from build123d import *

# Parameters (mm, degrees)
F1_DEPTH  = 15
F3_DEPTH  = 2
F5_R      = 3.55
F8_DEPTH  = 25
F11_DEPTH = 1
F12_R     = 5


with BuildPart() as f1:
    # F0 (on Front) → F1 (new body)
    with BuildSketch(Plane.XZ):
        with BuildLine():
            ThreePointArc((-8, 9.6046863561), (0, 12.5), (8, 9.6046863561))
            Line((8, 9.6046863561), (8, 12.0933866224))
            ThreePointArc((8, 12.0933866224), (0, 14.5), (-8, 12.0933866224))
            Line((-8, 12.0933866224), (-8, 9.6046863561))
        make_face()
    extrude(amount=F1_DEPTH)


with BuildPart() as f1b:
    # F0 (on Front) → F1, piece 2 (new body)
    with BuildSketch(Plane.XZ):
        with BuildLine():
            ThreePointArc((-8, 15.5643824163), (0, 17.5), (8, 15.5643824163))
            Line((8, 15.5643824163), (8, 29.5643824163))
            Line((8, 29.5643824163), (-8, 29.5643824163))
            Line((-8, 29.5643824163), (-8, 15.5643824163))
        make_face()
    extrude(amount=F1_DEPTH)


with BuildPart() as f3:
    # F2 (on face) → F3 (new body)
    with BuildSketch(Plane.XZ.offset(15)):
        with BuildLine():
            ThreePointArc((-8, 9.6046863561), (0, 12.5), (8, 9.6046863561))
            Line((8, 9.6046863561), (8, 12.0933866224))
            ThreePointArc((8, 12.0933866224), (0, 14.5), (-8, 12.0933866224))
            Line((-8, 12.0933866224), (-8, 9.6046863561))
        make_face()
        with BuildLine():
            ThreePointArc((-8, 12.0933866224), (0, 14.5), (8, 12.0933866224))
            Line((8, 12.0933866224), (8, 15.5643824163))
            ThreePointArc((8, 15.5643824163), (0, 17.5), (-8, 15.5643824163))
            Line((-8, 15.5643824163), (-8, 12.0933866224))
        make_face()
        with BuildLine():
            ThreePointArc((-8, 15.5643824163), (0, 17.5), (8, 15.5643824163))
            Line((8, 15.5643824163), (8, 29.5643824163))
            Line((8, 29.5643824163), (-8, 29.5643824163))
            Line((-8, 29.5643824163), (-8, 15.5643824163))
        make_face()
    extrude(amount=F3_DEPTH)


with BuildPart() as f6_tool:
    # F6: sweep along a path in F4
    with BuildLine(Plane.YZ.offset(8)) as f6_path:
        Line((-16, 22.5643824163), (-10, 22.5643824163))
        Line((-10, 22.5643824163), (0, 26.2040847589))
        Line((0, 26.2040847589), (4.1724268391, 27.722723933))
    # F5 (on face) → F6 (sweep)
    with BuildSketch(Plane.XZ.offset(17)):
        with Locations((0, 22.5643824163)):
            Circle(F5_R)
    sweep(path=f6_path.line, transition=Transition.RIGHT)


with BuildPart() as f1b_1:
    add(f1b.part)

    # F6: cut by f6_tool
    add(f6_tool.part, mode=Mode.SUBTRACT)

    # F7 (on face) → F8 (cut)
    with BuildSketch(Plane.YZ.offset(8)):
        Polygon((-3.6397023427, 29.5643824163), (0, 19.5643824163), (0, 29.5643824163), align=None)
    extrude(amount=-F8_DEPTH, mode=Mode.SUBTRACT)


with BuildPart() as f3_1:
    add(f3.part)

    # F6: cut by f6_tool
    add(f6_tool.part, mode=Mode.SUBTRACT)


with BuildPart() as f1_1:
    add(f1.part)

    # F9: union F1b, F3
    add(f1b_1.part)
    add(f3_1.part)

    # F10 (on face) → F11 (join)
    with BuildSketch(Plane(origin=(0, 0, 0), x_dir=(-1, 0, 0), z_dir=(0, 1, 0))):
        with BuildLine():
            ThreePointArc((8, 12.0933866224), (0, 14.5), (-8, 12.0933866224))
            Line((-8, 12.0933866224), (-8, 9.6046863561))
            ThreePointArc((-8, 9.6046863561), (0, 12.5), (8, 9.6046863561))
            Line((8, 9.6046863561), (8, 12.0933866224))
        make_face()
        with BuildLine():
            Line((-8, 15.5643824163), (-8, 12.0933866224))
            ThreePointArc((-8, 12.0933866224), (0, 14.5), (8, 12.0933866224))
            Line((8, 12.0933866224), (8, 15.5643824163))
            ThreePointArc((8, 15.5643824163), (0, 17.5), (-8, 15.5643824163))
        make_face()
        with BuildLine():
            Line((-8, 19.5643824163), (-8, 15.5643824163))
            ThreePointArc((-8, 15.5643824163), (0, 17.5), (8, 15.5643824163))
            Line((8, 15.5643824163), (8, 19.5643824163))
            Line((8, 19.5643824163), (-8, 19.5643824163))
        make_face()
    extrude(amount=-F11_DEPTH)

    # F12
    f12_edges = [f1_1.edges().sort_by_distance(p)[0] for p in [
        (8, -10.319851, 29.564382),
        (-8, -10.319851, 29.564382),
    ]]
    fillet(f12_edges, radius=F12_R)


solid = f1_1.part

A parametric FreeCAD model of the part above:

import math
import FreeCAD as App
import Part
import Sketcher
from FreeCAD import Vector
Q = App.Units.Quantity


def edges_at(feature, points):
    """Names of the edges that pass closest to the given points."""
    edges = feature.Shape.Edges
    near = lambda p: min(range(len(edges)), key=lambda i: edges[i].distToShape(Part.Vertex(*p))[0])
    return sorted({f"Edge{near(p) + 1}" for p in points})


def add_polygon(sketch, points):
    """Adds a closed chain of lines whose ends are joined by coincident constraints."""
    first, n = sketch.GeometryCount, len(points)
    for a, b in zip(points, points[1:] + points[:1]):
        sketch.addGeometry(Part.LineSegment(App.Vector(*a, 0), App.Vector(*b, 0)), False)
    for i in range(n):
        sketch.addConstraint(Sketcher.Constraint("Coincident", first + i, 2, first + (i + 1) % n, 1))

doc = App.newDocument("Part")
params = doc.addObject("Spreadsheet::Sheet", "Params")
for row, (alias, value) in enumerate([
    ("sketch1_radius", "12.5 mm"),
    ("sketch1_radius2", "14.5 mm"),
    ("pad1_length", "15 mm"),
    ("sketch2_radius", "17.5 mm"),
    ("sketch2_width", "16 mm"),
    ("sketch2_height", "14 mm"),
    ("pad2_length", "15 mm"),
    ("sketch3_radius", "12.5 mm"),
    ("sketch3_width", "16 mm"),
    ("pad3_length", "2 mm"),
    ("sketch4_diameter", "7.1 mm"),
    ("sketch5_width", "6 mm"),
    ("sketch6_height", "10 mm"),
    ("pocket1_length", "25 mm"),
    ("sketch7_radius", "12.5 mm"),
    ("sketch7_width", "16 mm"),
    ("pad4_length", "1 mm"),
    ("fillet_radius", "5 mm"),
], start=1):
    params.set(f"A{row}", alias)
    params.set(f"B{row}", "=" + value)
    params.setAlias(f"B{row}", alias)

body = doc.addObject("PartDesign::Body", "Body")

sketch1 = doc.addObject("Sketcher::SketchObject", "Sketch")
body.addObject(sketch1)
sketch1.AttachmentSupport = (doc.XZ_Plane, [""])
sketch1.MapMode = "FlatFace"
sketch1.addGeometry(Part.ArcOfCircle(Part.Circle(Vector(0, 0, 0), Vector(0, 0, 1), 12.5), math.radians(50), math.radians(130)), False)
sketch1.addGeometry(Part.LineSegment(Vector(8, 9.6, 0), Vector(8, 12.1, 0)), False)
sketch1.addGeometry(Part.ArcOfCircle(Part.Circle(Vector(0, 0, 0), Vector(0, 0, 1), 14.5), math.radians(57), math.radians(123)), False)
sketch1.addGeometry(Part.LineSegment(Vector(-8, 12.1, 0), Vector(-8, 9.6, 0)), False)
sketch1.addConstraint(Sketcher.Constraint("Coincident", 0, 1, 1, 1))
sketch1.addConstraint(Sketcher.Constraint("Coincident", 1, 2, 2, 1))
sketch1.addConstraint(Sketcher.Constraint("Coincident", 2, 2, 3, 1))
sketch1.addConstraint(Sketcher.Constraint("Coincident", 3, 2, 0, 2))
sketch1.addConstraint(Sketcher.Constraint("Vertical", 1))
sketch1.addConstraint(Sketcher.Constraint("Vertical", 3))
sketch1.addConstraint(Sketcher.Constraint("Coincident", 0, 3, -1, 1))
sketch1.addConstraint(Sketcher.Constraint("Coincident", 2, 3, -1, 1))
sketch1.addConstraint(Sketcher.Constraint("Horizontal", 1, 2, 2, 2))
sketch1.addConstraint(Sketcher.Constraint("Radius", 0, Q("12.5 mm")))
sketch1.addConstraint(Sketcher.Constraint("Radius", 2, Q("14.5 mm")))
sketch1.addConstraint(Sketcher.Constraint("DistanceX", -1, 1, 0, 1, Q("8 mm")))
sketch1.setExpression("Constraints[9]", "Params.sketch1_radius")
sketch1.setExpression("Constraints[10]", "Params.sketch1_radius2")
pad1 = doc.addObject("PartDesign::Pad", "Pad")
body.addObject(pad1)
pad1.Profile = sketch1
pad1.setExpression("Length", "Params.pad1_length")
body2 = doc.addObject("PartDesign::Body", "Body001")

sketch2 = doc.addObject("Sketcher::SketchObject", "Sketch001")
body2.addObject(sketch2)
sketch2.AttachmentSupport = (doc.getObject("XZ_Plane001"), [""])
sketch2.MapMode = "FlatFace"
sketch2.addGeometry(Part.ArcOfCircle(Part.Circle(Vector(0, 0, 0), Vector(0, 0, 1), 18), math.radians(63), math.radians(117)), False)
sketch2.addGeometry(Part.LineSegment(Vector(8, 16, 0), Vector(8, 30, 0)), False)
sketch2.addGeometry(Part.LineSegment(Vector(8, 30, 0), Vector(-8, 30, 0)), False)
sketch2.addGeometry(Part.LineSegment(Vector(-8, 30, 0), Vector(-8, 16, 0)), False)
sketch2.addConstraint(Sketcher.Constraint("Coincident", 0, 1, 1, 1))
sketch2.addConstraint(Sketcher.Constraint("Coincident", 1, 2, 2, 1))
sketch2.addConstraint(Sketcher.Constraint("Coincident", 2, 2, 3, 1))
sketch2.addConstraint(Sketcher.Constraint("Coincident", 3, 2, 0, 2))
sketch2.addConstraint(Sketcher.Constraint("Vertical", 1))
sketch2.addConstraint(Sketcher.Constraint("Horizontal", 2))
sketch2.addConstraint(Sketcher.Constraint("Vertical", 3))
sketch2.addConstraint(Sketcher.Constraint("Coincident", 0, 3, -1, 1))
sketch2.addConstraint(Sketcher.Constraint("Horizontal", 0, 1, 3, 2))
sketch2.addConstraint(Sketcher.Constraint("Radius", 0, Q("17.5 mm")))
sketch2.addConstraint(Sketcher.Constraint("DistanceX", 2, 2, 2, 1, Q("16 mm")))
sketch2.addConstraint(Sketcher.Constraint("DistanceY", 1, 1, 1, 2, Q("14 mm")))
sketch2.setExpression("Constraints[9]", "Params.sketch2_radius")
sketch2.setExpression("Constraints[10]", "Params.sketch2_width")
sketch2.setExpression("Constraints[11]", "Params.sketch2_height")
pad2 = doc.addObject("PartDesign::Pad", "Pad001")
body2.addObject(pad2)
pad2.Profile = sketch2
pad2.setExpression("Length", "Params.pad2_length")
body3 = doc.addObject("PartDesign::Body", "Body002")

sketch3 = doc.addObject("Sketcher::SketchObject", "Sketch002")
body3.addObject(sketch3)
sketch3.AttachmentSupport = (doc.getObject("XZ_Plane002"), [""])
sketch3.MapMode = "FlatFace"
sketch3.AttachmentOffset = App.Placement(Vector(0, 0, 15), App.Rotation())
sketch3.addGeometry(Part.ArcOfCircle(Part.Circle(Vector(0, 0, 0), Vector(0, 0, 1), 12), math.radians(50), math.radians(130)), False)
sketch3.addGeometry(Part.LineSegment(Vector(8, 10, 0), Vector(8, 30, 0)), False)
sketch3.addGeometry(Part.LineSegment(Vector(8, 30, 0), Vector(-8, 30, 0)), False)
sketch3.addGeometry(Part.LineSegment(Vector(-8, 30, 0), Vector(-8, 10, 0)), False)
sketch3.addConstraint(Sketcher.Constraint("Coincident", 0, 1, 1, 1))
sketch3.addConstraint(Sketcher.Constraint("Coincident", 1, 2, 2, 1))
sketch3.addConstraint(Sketcher.Constraint("Coincident", 2, 2, 3, 1))
sketch3.addConstraint(Sketcher.Constraint("Coincident", 3, 2, 0, 2))
sketch3.addConstraint(Sketcher.Constraint("Vertical", 1))
sketch3.addConstraint(Sketcher.Constraint("Horizontal", 2))
sketch3.addConstraint(Sketcher.Constraint("Vertical", 3))
sketch3.addConstraint(Sketcher.Constraint("Coincident", 0, 3, -1, 1))
sketch3.addConstraint(Sketcher.Constraint("Horizontal", 0, 1, 3, 2))
sketch3.addConstraint(Sketcher.Constraint("Radius", 0, Q("12.5 mm")))
sketch3.addConstraint(Sketcher.Constraint("DistanceX", 2, 2, 2, 1, Q("16 mm")))
sketch3.addConstraint(Sketcher.Constraint("DistanceY", 1, 1, 1, 2, Q("19.959696 mm")))
sketch3.setExpression("Constraints[9]", "Params.sketch3_radius")
sketch3.setExpression("Constraints[10]", "Params.sketch3_width")
pad3 = doc.addObject("PartDesign::Pad", "Pad002")
body3.addObject(pad3)
pad3.Profile = sketch3
pad3.setExpression("Length", "Params.pad3_length")
body4 = doc.addObject("PartDesign::Body", "Body003")

sketch4 = doc.addObject("Sketcher::SketchObject", "Sketch003")
body4.addObject(sketch4)
sketch4.AttachmentSupport = (doc.getObject("XZ_Plane003"), [""])
sketch4.MapMode = "FlatFace"
sketch4.AttachmentOffset = App.Placement(Vector(0, 0, 17), App.Rotation())
sketch4.addGeometry(Part.Circle(Vector(0, 22.6, 0), Vector(0, 0, 1), 3.5), False)
sketch4.addConstraint(Sketcher.Constraint("PointOnObject", 0, 3, -2))
sketch4.addConstraint(Sketcher.Constraint("Diameter", 0, Q("7.1 mm")))
sketch4.addConstraint(Sketcher.Constraint("DistanceY", -1, 1, 0, 3, Q("22.564382 mm")))
sketch4.setExpression("Constraints[1]", "Params.sketch4_diameter")

sketch5 = doc.addObject("Sketcher::SketchObject", "Sketch004")
body4.addObject(sketch5)
sketch5.AttachmentSupport = (doc.getObject("YZ_Plane003"), [""])
sketch5.MapMode = "FlatFace"
sketch5.AttachmentOffset = App.Placement(Vector(0, 0, 8), App.Rotation())
sketch5.addGeometry(Part.LineSegment(Vector(-16, 22.6, 0), Vector(-10, 22.6, 0)), False)
sketch5.addGeometry(Part.LineSegment(Vector(-10, 22.6, 0), Vector(0, 26.2, 0)), False)
sketch5.addGeometry(Part.LineSegment(Vector(0, 26.2, 0), Vector(4.2, 27.7, 0)), False)
sketch5.addConstraint(Sketcher.Constraint("Coincident", 0, 2, 1, 1))
sketch5.addConstraint(Sketcher.Constraint("Coincident", 1, 2, 2, 1))
sketch5.addConstraint(Sketcher.Constraint("Horizontal", 0))
sketch5.addConstraint(Sketcher.Constraint("PointOnObject", 1, 2, -2))
sketch5.addConstraint(Sketcher.Constraint("Parallel", 1, 2))
sketch5.addConstraint(Sketcher.Constraint("DistanceX", 0, 1, 0, 2, Q("6 mm")))
sketch5.addConstraint(Sketcher.Constraint("Angle", 1, Q("20 deg")))
sketch5.addConstraint(Sketcher.Constraint("DistanceX", 0, 1, -1, 1, Q("16 mm")))
sketch5.addConstraint(Sketcher.Constraint("DistanceY", 1, 2, 2, 2, Q("1.518639 mm")))
sketch5.addConstraint(Sketcher.Constraint("DistanceY", -1, 1, 0, 1, Q("22.564382 mm")))
sketch5.setExpression("Constraints[5]", "Params.sketch5_width")
doc.recompute()

additivepipe = doc.addObject("PartDesign::AdditivePipe", "AdditivePipe")
body4.addObject(additivepipe)
additivepipe.Profile = sketch4
additivepipe.Spine = (sketch5, ["Edge1", "Edge2", "Edge3"])
additivepipe.Transition = "Right corner"
doc.recompute()

body5 = doc.addObject("PartDesign::Body", "Body004")
body5.BaseFeature = body4
boolean = doc.addObject("PartDesign::Boolean", "Boolean")
body2.addObject(boolean)
boolean.Type = "Cut"
boolean.addObjects([body5])
doc.recompute()

sketch6 = doc.addObject("Sketcher::SketchObject", "Sketch005")
body2.addObject(sketch6)
sketch6.AttachmentSupport = (doc.getObject("YZ_Plane001"), [""])
sketch6.MapMode = "FlatFace"
sketch6.AttachmentOffset = App.Placement(Vector(0, 0, 8), App.Rotation())
add_polygon(sketch6, [(-3.6, 29.6), (0, 19.6), (0, 29.6)])
sketch6.addConstraint(Sketcher.Constraint("Vertical", 1))
sketch6.addConstraint(Sketcher.Constraint("Horizontal", 2))
sketch6.addConstraint(Sketcher.Constraint("PointOnObject", 0, 2, -2))
sketch6.addConstraint(Sketcher.Constraint("DistanceY", 1, 1, 1, 2, Q("10 mm")))
sketch6.addConstraint(Sketcher.Constraint("Angle", 0, Q("-70 deg")))
sketch6.addConstraint(Sketcher.Constraint("DistanceY", -1, 1, 0, 2, Q("19.564382 mm")))
sketch6.setExpression("Constraints[6]", "Params.sketch6_height")
pocket1 = doc.addObject("PartDesign::Pocket", "Pocket")
body2.addObject(pocket1)
pocket1.Profile = sketch6
pocket1.setExpression("Length", "Params.pocket1_length")
doc.recompute()

boolean2 = doc.addObject("PartDesign::Boolean", "Boolean001")
body3.addObject(boolean2)
boolean2.Type = "Cut"
boolean2.addObjects([body4])
body.AllowCompound = True
doc.recompute()

boolean3 = doc.addObject("PartDesign::Boolean", "Boolean002")
body.addObject(boolean3)
boolean3.Type = "Fuse"
boolean3.addObjects([body2])
doc.recompute()

boolean4 = doc.addObject("PartDesign::Boolean", "Boolean003")
body.addObject(boolean4)
boolean4.Type = "Fuse"
boolean4.addObjects([body3])

sketch7 = doc.addObject("Sketcher::SketchObject", "Sketch006")
body.addObject(sketch7)
sketch7.AttachmentSupport = (doc.XZ_Plane, [""])
sketch7.MapMode = "FlatFace"
sketch7.addGeometry(Part.ArcOfCircle(Part.Circle(Vector(0, 0, 0), Vector(0, 0, 1), 12), math.radians(50), math.radians(130)), False)
sketch7.addGeometry(Part.LineSegment(Vector(-8, 10, 0), Vector(-8, 20, 0)), False)
sketch7.addGeometry(Part.LineSegment(Vector(-8, 20, 0), Vector(8, 20, 0)), False)
sketch7.addGeometry(Part.LineSegment(Vector(8, 20, 0), Vector(8, 10, 0)), False)
sketch7.addConstraint(Sketcher.Constraint("Coincident", 0, 2, 1, 1))
sketch7.addConstraint(Sketcher.Constraint("Coincident", 1, 2, 2, 1))
sketch7.addConstraint(Sketcher.Constraint("Coincident", 2, 2, 3, 1))
sketch7.addConstraint(Sketcher.Constraint("Coincident", 3, 2, 0, 1))
sketch7.addConstraint(Sketcher.Constraint("Vertical", 1))
sketch7.addConstraint(Sketcher.Constraint("Horizontal", 2))
sketch7.addConstraint(Sketcher.Constraint("Vertical", 3))
sketch7.addConstraint(Sketcher.Constraint("Coincident", 0, 3, -1, 1))
sketch7.addConstraint(Sketcher.Constraint("Horizontal", 0, 2, 3, 2))
sketch7.addConstraint(Sketcher.Constraint("Radius", 0, Q("12.5 mm")))
sketch7.addConstraint(Sketcher.Constraint("DistanceX", 2, 1, 2, 2, Q("16 mm")))
sketch7.addConstraint(Sketcher.Constraint("DistanceY", 1, 1, 1, 2, Q("9.959696 mm")))
sketch7.setExpression("Constraints[9]", "Params.sketch7_radius")
sketch7.setExpression("Constraints[10]", "Params.sketch7_width")
pad4 = doc.addObject("PartDesign::Pad", "Pad003")
body.addObject(pad4)
pad4.Profile = sketch7
pad4.setExpression("Length", "Params.pad4_length")
doc.recompute()

fillet = doc.addObject("PartDesign::Fillet", "Fillet")
body.addObject(fillet)
fillet.Base = (pad4, edges_at(pad4, [(8, -10.32, 29.564), (-8, -10.32, 29.564)]))
fillet.setExpression("Radius", "Params.fillet_radius")

doc.recompute()
